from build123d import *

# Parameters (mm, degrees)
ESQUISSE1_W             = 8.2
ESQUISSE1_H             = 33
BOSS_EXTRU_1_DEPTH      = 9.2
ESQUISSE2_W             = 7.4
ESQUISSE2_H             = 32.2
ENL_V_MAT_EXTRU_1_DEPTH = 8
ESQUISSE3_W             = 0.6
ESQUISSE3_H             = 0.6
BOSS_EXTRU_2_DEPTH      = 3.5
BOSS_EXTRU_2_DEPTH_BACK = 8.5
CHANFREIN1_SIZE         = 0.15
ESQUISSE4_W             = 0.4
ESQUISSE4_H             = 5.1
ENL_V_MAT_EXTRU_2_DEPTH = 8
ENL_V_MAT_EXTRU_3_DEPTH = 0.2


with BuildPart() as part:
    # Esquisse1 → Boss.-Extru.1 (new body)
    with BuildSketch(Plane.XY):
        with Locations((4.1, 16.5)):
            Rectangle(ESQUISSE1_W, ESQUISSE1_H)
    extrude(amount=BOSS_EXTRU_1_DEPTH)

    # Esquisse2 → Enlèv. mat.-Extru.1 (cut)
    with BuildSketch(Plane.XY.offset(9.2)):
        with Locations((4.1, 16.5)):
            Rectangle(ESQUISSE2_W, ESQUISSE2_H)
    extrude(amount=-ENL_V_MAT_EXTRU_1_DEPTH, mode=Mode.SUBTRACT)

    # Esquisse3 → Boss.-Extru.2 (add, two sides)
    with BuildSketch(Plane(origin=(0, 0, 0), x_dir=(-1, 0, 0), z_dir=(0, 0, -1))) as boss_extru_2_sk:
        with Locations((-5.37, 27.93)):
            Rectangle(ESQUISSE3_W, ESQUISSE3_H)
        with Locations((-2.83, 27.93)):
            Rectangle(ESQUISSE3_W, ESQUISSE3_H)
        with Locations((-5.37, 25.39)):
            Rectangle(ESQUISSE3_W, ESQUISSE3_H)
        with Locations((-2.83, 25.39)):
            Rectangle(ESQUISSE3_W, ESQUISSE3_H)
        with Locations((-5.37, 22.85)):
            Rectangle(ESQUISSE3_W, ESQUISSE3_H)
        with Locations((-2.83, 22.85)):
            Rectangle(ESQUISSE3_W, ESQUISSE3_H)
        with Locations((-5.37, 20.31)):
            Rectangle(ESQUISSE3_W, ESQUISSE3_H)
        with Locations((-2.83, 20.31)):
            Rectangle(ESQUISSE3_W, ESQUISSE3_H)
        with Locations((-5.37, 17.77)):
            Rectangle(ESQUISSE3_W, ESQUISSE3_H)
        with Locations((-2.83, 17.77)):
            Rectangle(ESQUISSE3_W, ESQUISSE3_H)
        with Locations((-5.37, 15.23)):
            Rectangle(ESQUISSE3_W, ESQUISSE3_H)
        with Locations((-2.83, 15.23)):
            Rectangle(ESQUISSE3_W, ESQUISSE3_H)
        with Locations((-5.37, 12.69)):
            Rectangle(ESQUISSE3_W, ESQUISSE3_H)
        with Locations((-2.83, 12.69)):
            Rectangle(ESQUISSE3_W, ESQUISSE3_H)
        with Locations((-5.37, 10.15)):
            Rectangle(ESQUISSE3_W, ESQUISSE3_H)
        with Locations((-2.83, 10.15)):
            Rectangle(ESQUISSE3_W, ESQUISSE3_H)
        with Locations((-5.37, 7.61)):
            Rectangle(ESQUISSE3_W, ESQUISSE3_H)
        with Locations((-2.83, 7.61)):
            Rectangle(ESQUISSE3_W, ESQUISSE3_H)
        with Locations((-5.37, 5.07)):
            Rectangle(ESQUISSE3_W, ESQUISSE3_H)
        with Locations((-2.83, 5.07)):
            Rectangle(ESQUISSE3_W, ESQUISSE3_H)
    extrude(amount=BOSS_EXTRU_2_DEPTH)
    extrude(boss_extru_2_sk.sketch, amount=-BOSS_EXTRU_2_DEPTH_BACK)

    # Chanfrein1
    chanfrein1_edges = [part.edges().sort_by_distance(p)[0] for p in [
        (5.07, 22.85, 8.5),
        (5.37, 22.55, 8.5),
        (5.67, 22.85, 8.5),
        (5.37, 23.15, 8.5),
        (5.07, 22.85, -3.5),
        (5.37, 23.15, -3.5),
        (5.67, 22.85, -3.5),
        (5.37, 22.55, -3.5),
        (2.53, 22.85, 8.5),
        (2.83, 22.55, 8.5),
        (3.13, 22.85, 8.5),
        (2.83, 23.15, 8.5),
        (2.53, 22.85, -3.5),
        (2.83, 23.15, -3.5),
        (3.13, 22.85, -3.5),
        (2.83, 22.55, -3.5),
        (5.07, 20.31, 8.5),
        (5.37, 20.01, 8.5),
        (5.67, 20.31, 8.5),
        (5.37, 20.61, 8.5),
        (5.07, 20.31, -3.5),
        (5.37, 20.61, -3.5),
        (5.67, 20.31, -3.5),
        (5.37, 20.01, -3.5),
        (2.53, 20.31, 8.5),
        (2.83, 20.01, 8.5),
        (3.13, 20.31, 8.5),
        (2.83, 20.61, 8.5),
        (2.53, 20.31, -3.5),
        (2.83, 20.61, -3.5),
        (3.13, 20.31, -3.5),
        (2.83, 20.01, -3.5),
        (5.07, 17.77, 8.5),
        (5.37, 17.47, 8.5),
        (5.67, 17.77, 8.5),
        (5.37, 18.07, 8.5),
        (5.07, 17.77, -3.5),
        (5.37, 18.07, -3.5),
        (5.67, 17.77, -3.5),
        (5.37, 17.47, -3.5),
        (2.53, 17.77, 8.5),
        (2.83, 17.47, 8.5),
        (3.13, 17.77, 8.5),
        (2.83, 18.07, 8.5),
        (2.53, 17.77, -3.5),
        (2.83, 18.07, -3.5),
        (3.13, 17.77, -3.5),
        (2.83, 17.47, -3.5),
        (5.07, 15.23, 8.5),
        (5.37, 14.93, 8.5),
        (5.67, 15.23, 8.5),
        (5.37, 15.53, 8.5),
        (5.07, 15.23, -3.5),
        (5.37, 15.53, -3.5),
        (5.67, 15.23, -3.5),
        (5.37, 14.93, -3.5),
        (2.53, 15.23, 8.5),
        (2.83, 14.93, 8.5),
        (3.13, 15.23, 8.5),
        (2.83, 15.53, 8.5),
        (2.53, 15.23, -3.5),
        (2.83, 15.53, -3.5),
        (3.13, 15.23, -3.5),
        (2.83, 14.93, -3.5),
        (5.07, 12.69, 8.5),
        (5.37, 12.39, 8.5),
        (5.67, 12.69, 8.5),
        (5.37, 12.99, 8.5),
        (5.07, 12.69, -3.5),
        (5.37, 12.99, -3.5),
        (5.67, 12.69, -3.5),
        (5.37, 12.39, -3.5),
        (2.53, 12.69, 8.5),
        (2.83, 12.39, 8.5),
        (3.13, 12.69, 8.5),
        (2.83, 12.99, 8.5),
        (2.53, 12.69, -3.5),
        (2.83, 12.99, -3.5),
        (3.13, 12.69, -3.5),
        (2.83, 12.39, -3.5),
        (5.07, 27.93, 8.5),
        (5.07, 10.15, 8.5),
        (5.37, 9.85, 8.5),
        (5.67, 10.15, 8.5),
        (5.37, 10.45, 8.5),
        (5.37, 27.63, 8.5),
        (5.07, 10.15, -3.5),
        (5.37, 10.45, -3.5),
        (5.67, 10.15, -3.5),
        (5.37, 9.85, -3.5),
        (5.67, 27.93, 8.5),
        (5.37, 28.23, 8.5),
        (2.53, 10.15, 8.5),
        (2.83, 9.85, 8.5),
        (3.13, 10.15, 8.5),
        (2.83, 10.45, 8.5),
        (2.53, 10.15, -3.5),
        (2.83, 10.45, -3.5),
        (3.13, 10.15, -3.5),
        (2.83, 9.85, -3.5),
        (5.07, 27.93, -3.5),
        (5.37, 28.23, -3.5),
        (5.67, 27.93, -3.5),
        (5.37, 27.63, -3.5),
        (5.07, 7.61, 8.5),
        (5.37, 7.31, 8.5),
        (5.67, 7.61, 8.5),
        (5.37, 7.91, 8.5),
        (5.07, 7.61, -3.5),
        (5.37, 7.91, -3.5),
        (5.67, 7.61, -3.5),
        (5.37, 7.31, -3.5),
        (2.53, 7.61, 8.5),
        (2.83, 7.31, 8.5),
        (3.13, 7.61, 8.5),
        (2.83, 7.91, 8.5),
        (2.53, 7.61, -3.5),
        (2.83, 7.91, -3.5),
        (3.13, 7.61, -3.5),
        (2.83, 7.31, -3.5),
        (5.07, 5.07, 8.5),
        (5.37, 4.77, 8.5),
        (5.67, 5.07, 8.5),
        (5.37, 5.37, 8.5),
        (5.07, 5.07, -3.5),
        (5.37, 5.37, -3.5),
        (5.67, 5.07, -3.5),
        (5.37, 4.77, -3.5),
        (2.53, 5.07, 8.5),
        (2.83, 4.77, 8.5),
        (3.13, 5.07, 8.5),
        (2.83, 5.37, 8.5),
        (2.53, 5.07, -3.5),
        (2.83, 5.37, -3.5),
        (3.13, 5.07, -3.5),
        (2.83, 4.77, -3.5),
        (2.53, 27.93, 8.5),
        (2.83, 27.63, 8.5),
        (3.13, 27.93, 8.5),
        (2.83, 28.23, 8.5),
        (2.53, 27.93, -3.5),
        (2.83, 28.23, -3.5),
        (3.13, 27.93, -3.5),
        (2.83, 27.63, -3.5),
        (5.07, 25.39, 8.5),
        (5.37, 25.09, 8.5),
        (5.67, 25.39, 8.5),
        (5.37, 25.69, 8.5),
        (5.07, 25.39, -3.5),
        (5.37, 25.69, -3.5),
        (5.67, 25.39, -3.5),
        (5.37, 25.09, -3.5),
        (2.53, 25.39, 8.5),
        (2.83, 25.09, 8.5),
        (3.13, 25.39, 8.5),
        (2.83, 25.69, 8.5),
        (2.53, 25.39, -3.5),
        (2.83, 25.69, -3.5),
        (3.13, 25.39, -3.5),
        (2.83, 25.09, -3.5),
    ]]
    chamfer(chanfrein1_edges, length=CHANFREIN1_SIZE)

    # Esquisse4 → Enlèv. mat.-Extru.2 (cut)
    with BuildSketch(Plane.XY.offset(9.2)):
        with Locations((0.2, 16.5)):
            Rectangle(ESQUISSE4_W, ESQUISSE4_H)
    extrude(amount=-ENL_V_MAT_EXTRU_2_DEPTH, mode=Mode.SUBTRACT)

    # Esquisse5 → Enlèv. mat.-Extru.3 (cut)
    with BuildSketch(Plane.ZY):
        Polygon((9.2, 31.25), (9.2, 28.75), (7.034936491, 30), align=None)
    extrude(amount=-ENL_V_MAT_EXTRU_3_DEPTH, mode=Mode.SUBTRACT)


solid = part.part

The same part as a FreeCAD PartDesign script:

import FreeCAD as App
import Part
import Sketcher
Q = App.Units.Quantity


def edges_at(feature, points):
    """Names of the edges that pass closest to the given points."""
    edges = feature.Shape.Edges
    near = lambda p: min(range(len(edges)), key=lambda i: edges[i].distToShape(Part.Vertex(*p))[0])
    return sorted({f"Edge{near(p) + 1}" for p in points})

doc = App.newDocument("Part")
body = doc.addObject("PartDesign::Body", "Body")

sketch1 = body.newObject("Sketcher::SketchObject", "Sketch")
sketch1.AttachmentSupport = (doc.getObject("XY_Plane"), [""])
sketch1.MapMode = "FlatFace"
sketch1.addGeometry([
    Part.LineSegment(App.Vector(0, 33, 0), App.Vector(0, 0, 0)),
    Part.LineSegment(App.Vector(0, 0, 0), App.Vector(8.2, 0, 0)),
    Part.LineSegment(App.Vector(8.2, 0, 0), App.Vector(8.2, 33, 0)),
    Part.LineSegment(App.Vector(8.2, 33, 0), App.Vector(0, 33, 0)),
], False)
sketch1.addConstraint([
    Sketcher.Constraint("Coincident", 0, 2, 1, 1),
    Sketcher.Constraint("Coincident", 1, 2, 2, 1),
    Sketcher.Constraint("Coincident", 2, 2, 3, 1),
    Sketcher.Constraint("Coincident", 3, 2, 0, 1),
    Sketcher.Constraint("Vertical", 0),
    Sketcher.Constraint("Horizontal", 1),
    Sketcher.Constraint("Vertical", 2),
    Sketcher.Constraint("Horizontal", 3),
    Sketcher.Constraint("Coincident", 0, 2, -1, 1),
    Sketcher.Constraint("DistanceY", 0, 2, 0, 1, 33.0),
    Sketcher.Constraint("DistanceX", 1, 1, 1, 2, 8.2),
])
pad1 = body.newObject("PartDesign::Pad", "Pad")
pad1.Profile = sketch1
pad1.Length = 9.2

sketch2 = body.newObject("Sketcher::SketchObject", "Sketch001")
sketch2.AttachmentSupport = (doc.getObject("XY_Plane"), [""])
sketch2.MapMode = "FlatFace"
sketch2.AttachmentOffset = App.Placement(App.Vector(0, 0, 9.2), App.Rotation())
sketch2.addGeometry([
    Part.LineSegment(App.Vector(0.4, 32.6, 0), App.Vector(0.4, 0.4, 0)),
    Part.LineSegment(App.Vector(0.4, 0.4, 0), App.Vector(7.8, 0.4, 0)),
    Part.LineSegment(App.Vector(7.8, 0.4, 0), App.Vector(7.8, 32.6, 0)),
    Part.LineSegment(App.Vector(7.8, 32.6, 0), App.Vector(0.4, 32.6, 0)),
], False)
sketch2.addConstraint([
    Sketcher.Constraint("Coincident", 0, 2, 1, 1),
    Sketcher.Constraint("Coincident", 1, 2, 2, 1),
    Sketcher.Constraint("Coincident", 2, 2, 3, 1),
    Sketcher.Constraint("Coincident", 3, 2, 0, 1),
    Sketcher.Constraint("Vertical", 0),
    Sketcher.Constraint("Horizontal", 1),
    Sketcher.Constraint("Vertical", 2),
    Sketcher.Constraint("Horizontal", 3),
    Sketcher.Constraint("DistanceX", 1, 1, 1, 2, 7.4),
    Sketcher.Constraint("DistanceY", 0, 2, 0, 1, 32.2),
    Sketcher.Constraint("DistanceX", -1, 1, 0, 2, 0.4),
    Sketcher.Constraint("DistanceY", -1, 1, 0, 2, 0.4),
])
pocket1 = body.newObject("PartDesign::Pocket", "Pocket")
pocket1.Profile = sketch2
pocket1.Length = 8

sketch3 = body.newObject("Sketcher::SketchObject", "Sketch002")
sketch3.AttachmentSupport = (doc.getObject("XY_Plane"), [""])
sketch3.MapMode = "FlatFace"
sketch3.addGeometry([
    Part.LineSegment(App.Vector(5.67, 28.23, 0), App.Vector(5.67, 27.63, 0)),
    Part.LineSegment(App.Vector(5.67, 27.63, 0), App.Vector(5.07, 27.63, 0)),
    Part.LineSegment(App.Vector(5.07, 27.63, 0), App.Vector(5.07, 28.23, 0)),
    Part.LineSegment(App.Vector(5.07, 28.23, 0), App.Vector(5.67, 28.23, 0)),
    Part.LineSegment(App.Vector(3.13, 28.23, 0), App.Vector(3.13, 27.63, 0)),
    Part.LineSegment(App.Vector(3.13, 27.63, 0), App.Vector(2.53, 27.63, 0)),
    Part.LineSegment(App.Vector(2.53, 27.63, 0), App.Vector(2.53, 28.23, 0)),
    Part.LineSegment(App.Vector(2.53, 28.23, 0), App.Vector(3.13, 28.23, 0)),
    Part.LineSegment(App.Vector(5.67, 25.69, 0), App.Vector(5.67, 25.09, 0)),
    Part.LineSegment(App.Vector(5.67, 25.09, 0), App.Vector(5.07, 25.09, 0)),
    Part.LineSegment(App.Vector(5.07, 25.09, 0), App.Vector(5.07, 25.69, 0)),
    Part.LineSegment(App.Vector(5.07, 25.69, 0), App.Vector(5.67, 25.69, 0)),
    Part.LineSegment(App.Vector(3.13, 25.69, 0), App.Vector(3.13, 25.09, 0)),
    Part.LineSegment(App.Vector(3.13, 25.09, 0), App.Vector(2.53, 25.09, 0)),
    Part.LineSegment(App.Vector(2.53, 25.09, 0), App.Vector(2.53, 25.69, 0)),
    Part.LineSegment(App.Vector(2.53, 25.69, 0), App.Vector(3.13, 25.69, 0)),
    Part.LineSegment(App.Vector(5.67, 23.15, 0), App.Vector(5.67, 22.55, 0)),
    Part.LineSegment(App.Vector(5.67, 22.55, 0), App.Vector(5.07, 22.55, 0)),
    Part.LineSegment(App.Vector(5.07, 22.55, 0), App.Vector(5.07, 23.15, 0)),
    Part.LineSegment(App.Vector(5.07, 23.15, 0), App.Vector(5.67, 23.15, 0)),
    Part.LineSegment(App.Vector(3.13, 23.15, 0), App.Vector(3.13, 22.55, 0)),
    Part.LineSegment(App.Vector(3.13, 22.55, 0), App.Vector(2.53, 22.55, 0)),
    Part.LineSegment(App.Vector(2.53, 22.55, 0), App.Vector(2.53, 23.15, 0)),
    Part.LineSegment(App.Vector(2.53, 23.15, 0), App.Vector(3.13, 23.15, 0)),
    Part.LineSegment(App.Vector(5.67, 20.61, 0), App.Vector(5.67, 20.01, 0)),
    Part.LineSegment(App.Vector(5.67, 20.01, 0), App.Vector(5.07, 20.01, 0)),
    Part.LineSegment(App.Vector(5.07, 20.01, 0), App.Vector(5.07, 20.61, 0)),
    Part.LineSegment(App.Vector(5.07, 20.61, 0), App.Vector(5.67, 20.61, 0)),
    Part.LineSegment(App.Vector(3.13, 20.61, 0), App.Vector(3.13, 20.01, 0)),
    Part.LineSegment(App.Vector(3.13, 20.01, 0), App.Vector(2.53, 20.01, 0)),
    Part.LineSegment(App.Vector(2.53, 20.01, 0), App.Vector(2.53, 20.61, 0)),
    Part.LineSegment(App.Vector(2.53, 20.61, 0), App.Vector(3.13, 20.61, 0)),
    Part.LineSegment(App.Vector(5.67, 18.07, 0), App.Vector(5.67, 17.47, 0)),
    Part.LineSegment(App.Vector(5.67, 17.47, 0), App.Vector(5.07, 17.47, 0)),
    Part.LineSegment(App.Vector(5.07, 17.47, 0), App.Vector(5.07, 18.07, 0)),
    Part.LineSegment(App.Vector(5.07, 18.07, 0), App.Vector(5.67, 18.07, 0)),
    Part.LineSegment(App.Vector(3.13, 18.07, 0), App.Vector(3.13, 17.47, 0)),
    Part.LineSegment(App.Vector(3.13, 17.47, 0), App.Vector(2.53, 17.47, 0)),
    Part.LineSegment(App.Vector(2.53, 17.47, 0), App.Vector(2.53, 18.07, 0)),
    Part.LineSegment(App.Vector(2.53, 18.07, 0), App.Vector(3.13, 18.07, 0)),
    Part.LineSegment(App.Vector(5.67, 15.53, 0), App.Vector(5.67, 14.93, 0)),
    Part.LineSegment(App.Vector(5.67, 14.93, 0), App.Vector(5.07, 14.93, 0)),
    Part.LineSegment(App.Vector(5.07, 14.93, 0), App.Vector(5.07, 15.53, 0)),
    Part.LineSegment(App.Vector(5.07, 15.53, 0), App.Vector(5.67, 15.53, 0)),
    Part.LineSegment(App.Vector(3.13, 15.53, 0), App.Vector(3.13, 14.93, 0)),
    Part.LineSegment(App.Vector(3.13, 14.93, 0), App.Vector(2.53, 14.93, 0)),
    Part.LineSegment(App.Vector(2.53, 14.93, 0), App.Vector(2.53, 15.53, 0)),
    Part.LineSegment(App.Vector(2.53, 15.53, 0), App.Vector(3.13, 15.53, 0)),
    Part.LineSegment(App.Vector(5.67, 12.99, 0), App.Vector(5.67, 12.39, 0)),
    Part.LineSegment(App.Vector(5.67, 12.39, 0), App.Vector(5.07, 12.39, 0)),
    Part.LineSegment(App.Vector(5.07, 12.39, 0), App.Vector(5.07, 12.99, 0)),
    Part.LineSegment(App.Vector(5.07, 12.99, 0), App.Vector(5.67, 12.99, 0)),
    Part.LineSegment(App.Vector(3.13, 12.99, 0), App.Vector(3.13, 12.39, 0)),
    Part.LineSegment(App.Vector(3.13, 12.39, 0), App.Vector(2.53, 12.39, 0)),
    Part.LineSegment(App.Vector(2.53, 12.39, 0), App.Vector(2.53, 12.99, 0)),
    Part.LineSegment(App.Vector(2.53, 12.99, 0), App.Vector(3.13, 12.99, 0)),
    Part.LineSegment(App.Vector(5.67, 10.45, 0), App.Vector(5.67, 9.85, 0)),
    Part.LineSegment(App.Vector(5.67, 9.85, 0), App.Vector(5.07, 9.85, 0)),
    Part.LineSegment(App.Vector(5.07, 9.85, 0), App.Vector(5.07, 10.45, 0)),
    Part.LineSegment(App.Vector(5.07, 10.45, 0), App.Vector(5.67, 10.45, 0)),
    Part.LineSegment(App.Vector(3.13, 10.45, 0), App.Vector(3.13, 9.85, 0)),
    Part.LineSegment(App.Vector(3.13, 9.85, 0), App.Vector(2.53, 9.85, 0)),
    Part.LineSegment(App.Vector(2.53, 9.85, 0), App.Vector(2.53, 10.45, 0)),
    Part.LineSegment(App.Vector(2.53, 10.45, 0), App.Vector(3.13, 10.45, 0)),
    Part.LineSegment(App.Vector(5.67, 7.91, 0), App.Vector(5.67, 7.31, 0)),
    Part.LineSegment(App.Vector(5.67, 7.31, 0), App.Vector(5.07, 7.31, 0)),
    Part.LineSegment(App.Vector(5.07, 7.31, 0), App.Vector(5.07, 7.91, 0)),
    Part.LineSegment(App.Vector(5.07, 7.91, 0), App.Vector(5.67, 7.91, 0)),
    Part.LineSegment(App.Vector(3.13, 7.91, 0), App.Vector(3.13, 7.31, 0)),
    Part.LineSegment(App.Vector(3.13, 7.31, 0), App.Vector(2.53, 7.31, 0)),
    Part.LineSegment(App.Vector(2.53, 7.31, 0), App.Vector(2.53, 7.91, 0)),
    Part.LineSegment(App.Vector(2.53, 7.91, 0), App.Vector(3.13, 7.91, 0)),
    Part.LineSegment(App.Vector(5.67, 5.37, 0), App.Vector(5.67, 4.77, 0)),
    Part.LineSegment(App.Vector(5.67, 4.77, 0), App.Vector(5.07, 4.77, 0)),
    Part.LineSegment(App.Vector(5.07, 4.77, 0), App.Vector(5.07, 5.37, 0)),
    Part.LineSegment(App.Vector(5.07, 5.37, 0), App.Vector(5.67, 5.37, 0)),
    Part.LineSegment(App.Vector(3.13, 5.37, 0), App.Vector(3.13, 4.77, 0)),
    Part.LineSegment(App.Vector(3.13, 4.77, 0), App.Vector(2.53, 4.77, 0)),
    Part.LineSegment(App.Vector(2.53, 4.77, 0), App.Vector(2.53, 5.37, 0)),
    Part.LineSegment(App.Vector(2.53, 5.37, 0), App.Vector(3.13, 5.37, 0)),
], False)
sketch3.addConstraint([
    Sketcher.Constraint("Coincident", 0, 2, 1, 1),
    Sketcher.Constraint("Coincident", 1, 2, 2, 1),
    Sketcher.Constraint("Coincident", 2, 2, 3, 1),
    Sketcher.Constraint("Coincident", 3, 2, 0, 1),
    Sketcher.Constraint("Coincident", 4, 2, 5, 1),
    Sketcher.Constraint("Coincident", 5, 2, 6, 1),
    Sketcher.Constraint("Coincident", 6, 2, 7, 1),
    Sketcher.Constraint("Coincident", 7, 2, 4, 1),
    Sketcher.Constraint("Coincident", 8, 2, 9, 1),
    Sketcher.Constraint("Coincident", 9, 2, 10, 1),
    Sketcher.Constraint("Coincident", 10, 2, 11, 1),
    Sketcher.Constraint("Coincident", 11, 2, 8, 1),
    Sketcher.Constraint("Coincident", 12, 2, 13, 1),
    Sketcher.Constraint("Coincident", 13, 2, 14, 1),
    Sketcher.Constraint("Coincident", 14, 2, 15, 1),
    Sketcher.Constraint("Coincident", 15, 2, 12, 1),
    Sketcher.Constraint("Coincident", 16, 2, 17, 1),
    Sketcher.Constraint("Coincident", 17, 2, 18, 1),
    Sketcher.Constraint("Coincident", 18, 2, 19, 1),
    Sketcher.Constraint("Coincident", 19, 2, 16, 1),
    Sketcher.Constraint("Coincident", 20, 2, 21, 1),
    Sketcher.Constraint("Coincident", 21, 2, 22, 1),
    Sketcher.Constraint("Coincident", 22, 2, 23, 1),
    Sketcher.Constraint("Coincident", 23, 2, 20, 1),
    Sketcher.Constraint("Coincident", 24, 2, 25, 1),
    Sketcher.Constraint("Coincident", 25, 2, 26, 1),
    Sketcher.Constraint("Coincident", 26, 2, 27, 1),
    Sketcher.Constraint("Coincident", 27, 2, 24, 1),
    Sketcher.Constraint("Coincident", 28, 2, 29, 1),
    Sketcher.Constraint("Coincident", 29, 2, 30, 1),
    Sketcher.Constraint("Coincident", 30, 2, 31, 1),
    Sketcher.Constraint("Coincident", 31, 2, 28, 1),
    Sketcher.Constraint("Coincident", 32, 2, 33, 1),
    Sketcher.Constraint("Coincident", 33, 2, 34, 1),
    Sketcher.Constraint("Coincident", 34, 2, 35, 1),
    Sketcher.Constraint("Coincident", 35, 2, 32, 1),
    Sketcher.Constraint("Coincident", 36, 2, 37, 1),
    Sketcher.Constraint("Coincident", 37, 2, 38, 1),
    Sketcher.Constraint("Coincident", 38, 2, 39, 1),
    Sketcher.Constraint("Coincident", 39, 2, 36, 1),
    Sketcher.Constraint("Coincident", 40, 2, 41, 1),
    Sketcher.Constraint("Coincident", 41, 2, 42, 1),
    Sketcher.Constraint("Coincident", 42, 2, 43, 1),
    Sketcher.Constraint("Coincident", 43, 2, 40, 1),
    Sketcher.Constraint("Coincident", 44, 2, 45, 1),
    Sketcher.Constraint("Coincident", 45, 2, 46, 1),
    Sketcher.Constraint("Coincident", 46, 2, 47, 1),
    Sketcher.Constraint("Coincident", 47, 2, 44, 1),
    Sketcher.Constraint("Coincident", 48, 2, 49, 1),
    Sketcher.Constraint("Coincident", 49, 2, 50, 1),
    Sketcher.Constraint("Coincident", 50, 2, 51, 1),
    Sketcher.Constraint("Coincident", 51, 2, 48, 1),
    Sketcher.Constraint("Coincident", 52, 2, 53, 1),
    Sketcher.Constraint("Coincident", 53, 2, 54, 1),
    Sketcher.Constraint("Coincident", 54, 2, 55, 1),
    Sketcher.Constraint("Coincident", 55, 2, 52, 1),
    Sketcher.Constraint("Coincident", 56, 2, 57, 1),
    Sketcher.Constraint("Coincident", 57, 2, 58, 1),
    Sketcher.Constraint("Coincident", 58, 2, 59, 1),
    Sketcher.Constraint("Coincident", 59, 2, 56, 1),
    Sketcher.Constraint("Coincident", 60, 2, 61, 1),
    Sketcher.Constraint("Coincident", 61, 2, 62, 1),
    Sketcher.Constraint("Coincident", 62, 2, 63, 1),
    Sketcher.Constraint("Coincident", 63, 2, 60, 1),
    Sketcher.Constraint("Coincident", 64, 2, 65, 1),
    Sketcher.Constraint("Coincident", 65, 2, 66, 1),
    Sketcher.Constraint("Coincident", 66, 2, 67, 1),
    Sketcher.Constraint("Coincident", 67, 2, 64, 1),
    Sketcher.Constraint("Coincident", 68, 2, 69, 1),
    Sketcher.Constraint("Coincident", 69, 2, 70, 1),
    Sketcher.Constraint("Coincident", 70, 2, 71, 1),
    Sketcher.Constraint("Coincident", 71, 2, 68, 1),
    Sketcher.Constraint("Coincident", 72, 2, 73, 1),
    Sketcher.Constraint("Coincident", 73, 2, 74, 1),
    Sketcher.Constraint("Coincident", 74, 2, 75, 1),
    Sketcher.Constraint("Coincident", 75, 2, 72, 1),
    Sketcher.Constraint("Coincident", 76, 2, 77, 1),
    Sketcher.Constraint("Coincident", 77, 2, 78, 1),
    Sketcher.Constraint("Coincident", 78, 2, 79, 1),
    Sketcher.Constraint("Coincident", 79, 2, 76, 1),
    Sketcher.Constraint("Vertical", 0),
    Sketcher.Constraint("Horizontal", 1),
    Sketcher.Constraint("Vertical", 2),
    Sketcher.Constraint("Horizontal", 3),
    Sketcher.Constraint("Vertical", 4),
    Sketcher.Constraint("Horizontal", 5),
    Sketcher.Constraint("Vertical", 6),
    Sketcher.Constraint("Horizontal", 7),
    Sketcher.Constraint("Vertical", 8),
    Sketcher.Constraint("Horizontal", 9),
    Sketcher.Constraint("Vertical", 10),
    Sketcher.Constraint("Horizontal", 11),
    Sketcher.Constraint("Vertical", 12),
    Sketcher.Constraint("Horizontal", 13),
    Sketcher.Constraint("Vertical", 14),
    Sketcher.Constraint("Horizontal", 15),
    Sketcher.Constraint("Vertical", 16),
    Sketcher.Constraint("Horizontal", 17),
    Sketcher.Constraint("Vertical", 18),
    Sketcher.Constraint("Horizontal", 19),
    Sketcher.Constraint("Vertical", 20),
    Sketcher.Constraint("Horizontal", 21),
    Sketcher.Constraint("Vertical", 22),
    Sketcher.Constraint("Horizontal", 23),
    Sketcher.Constraint("Vertical", 24),
    Sketcher.Constraint("Horizontal", 25),
    Sketcher.Constraint("Vertical", 26),
    Sketcher.Constraint("Horizontal", 27),
    Sketcher.Constraint("Vertical", 28),
    Sketcher.Constraint("Horizontal", 29),
    Sketcher.Constraint("Vertical", 30),
    Sketcher.Constraint("Horizontal", 31),
    Sketcher.Constraint("Vertical", 32),
    Sketcher.Constraint("Horizontal", 33),
    Sketcher.Constraint("Vertical", 34),
    Sketcher.Constraint("Horizontal", 35),
    Sketcher.Constraint("Vertical", 36),
    Sketcher.Constraint("Horizontal", 37),
    Sketcher.Constraint("Vertical", 38),
    Sketcher.Constraint("Horizontal", 39),
    Sketcher.Constraint("Vertical", 40),
    Sketcher.Constraint("Horizontal", 41),
    Sketcher.Constraint("Vertical", 42),
    Sketcher.Constraint("Horizontal", 43),
    Sketcher.Constraint("Vertical", 44),
    Sketcher.Constraint("Horizontal", 45),
    Sketcher.Constraint("Vertical", 46),
    Sketcher.Constraint("Horizontal", 47),
    Sketcher.Constraint("Vertical", 48),
    Sketcher.Constraint("Horizontal", 49),
    Sketcher.Constraint("Vertical", 50),
    Sketcher.Constraint("Horizontal", 51),
    Sketcher.Constraint("Vertical", 52),
    Sketcher.Constraint("Horizontal", 53),
    Sketcher.Constraint("Vertical", 54),
    Sketcher.Constraint("Horizontal", 55),
    Sketcher.Constraint("Vertical", 56),
    Sketcher.Constraint("Horizontal", 57),
    Sketcher.Constraint("Vertical", 58),
    Sketcher.Constraint("Horizontal", 59),
    Sketcher.Constraint("Vertical", 60),
    Sketcher.Constraint("Horizontal", 61),
    Sketcher.Constraint("Vertical", 62),
    Sketcher.Constraint("Horizontal", 63),
    Sketcher.Constraint("Vertical", 64),
    Sketcher.Constraint("Horizontal", 65),
    Sketcher.Constraint("Vertical", 66),
    Sketcher.Constraint("Horizontal", 67),
    Sketcher.Constraint("Vertical", 68),
    Sketcher.Constraint("Horizontal", 69),
    Sketcher.Constraint("Vertical", 70),
    Sketcher.Constraint("Horizontal", 71),
    Sketcher.Constraint("Vertical", 72),
    Sketcher.Constraint("Horizontal", 73),
    Sketcher.Constraint("Vertical", 74),
    Sketcher.Constraint("Horizontal", 75),
    Sketcher.Constraint("Vertical", 76),
    Sketcher.Constraint("Horizontal", 77),
    Sketcher.Constraint("Vertical", 78),
    Sketcher.Constraint("Horizontal", 79),
    Sketcher.Constraint("Horizontal", 1, 2, 4, 2),
    Sketcher.Constraint("Horizontal", 3, 2, 6, 2),
    Sketcher.Constraint("Horizontal", 9, 2, 12, 2),
    Sketcher.Constraint("Horizontal", 11, 2, 14, 2),
    Sketcher.Constraint("Horizontal", 17, 2, 20, 2),
    Sketcher.Constraint("Horizontal", 19, 2, 22, 2),
    Sketcher.Constraint("Horizontal", 25, 2, 28, 2),
    Sketcher.Constraint("Horizontal", 27, 2, 30, 2),
    Sketcher.Constraint("Horizontal", 33, 2, 36, 2),
    Sketcher.Constraint("Horizontal", 35, 2, 38, 2),
    Sketcher.Constraint("Horizontal", 41, 2, 44, 2),
    Sketcher.Constraint("Horizontal", 43, 2, 46, 2),
    Sketcher.Constraint("Horizontal", 49, 2, 52, 2),
    Sketcher.Constraint("Horizontal", 51, 2, 54, 2),
    Sketcher.Constraint("Horizontal", 57, 2, 60, 2),
    Sketcher.Constraint("Horizontal", 59, 2, 62, 2),
    Sketcher.Constraint("Horizontal", 65, 2, 68, 2),
    Sketcher.Constraint("Horizontal", 67, 2, 70, 2),
    Sketcher.Constraint("Horizontal", 73, 2, 76, 2),
    Sketcher.Constraint("Horizontal", 75, 2, 78, 2),
    Sketcher.Constraint("Vertical", 3, 2, 8, 2),
    Sketcher.Constraint("Vertical", 2, 2, 9, 2),
    Sketcher.Constraint("Vertical", 7, 2, 12, 2),
    Sketcher.Constraint("Vertical", 6, 2, 13, 2),
    Sketcher.Constraint("Vertical", 11, 2, 16, 2),
    Sketcher.Constraint("Vertical", 10, 2, 17, 2),
    Sketcher.Constraint("Vertical", 15, 2, 20, 2),
    Sketcher.Constraint("Vertical", 14, 2, 21, 2),
    Sketcher.Constraint("Vertical", 19, 2, 24, 2),
    Sketcher.Constraint("Vertical", 18, 2, 25, 2),
    Sketcher.Constraint("Vertical", 23, 2, 28, 2),
    Sketcher.Constraint("Vertical", 22, 2, 29, 2),
    Sketcher.Constraint("Vertical", 27, 2, 32, 2),
    Sketcher.Constraint("Vertical", 26, 2, 33, 2),
    Sketcher.Constraint("Vertical", 31, 2, 36, 2),
    Sketcher.Constraint("Vertical", 30, 2, 37, 2),
    Sketcher.Constraint("Vertical", 35, 2, 40, 2),
    Sketcher.Constraint("Vertical", 34, 2, 41, 2),
    Sketcher.Constraint("Vertical", 39, 2, 44, 2),
    Sketcher.Constraint("Vertical", 38, 2, 45, 2),
    Sketcher.Constraint("Vertical", 43, 2, 48, 2),
    Sketcher.Constraint("Vertical", 42, 2, 49, 2),
    Sketcher.Constraint("Vertical", 47, 2, 52, 2),
    Sketcher.Constraint("Vertical", 46, 2, 53, 2),
    Sketcher.Constraint("Vertical", 51, 2, 56, 2),
    Sketcher.Constraint("Vertical", 50, 2, 57, 2),
    Sketcher.Constraint("Vertical", 55, 2, 60, 2),
    Sketcher.Constraint("Vertical", 54, 2, 61, 2),
    Sketcher.Constraint("Vertical", 59, 2, 64, 2),
    Sketcher.Constraint("Vertical", 58, 2, 65, 2),
    Sketcher.Constraint("Vertical", 63, 2, 68, 2),
    Sketcher.Constraint("Vertical", 62, 2, 69, 2),
    Sketcher.Constraint("Vertical", 67, 2, 72, 2),
    Sketcher.Constraint("Vertical", 66, 2, 73, 2),
    Sketcher.Constraint("Vertical", 71, 2, 76, 2),
    Sketcher.Constraint("Vertical", 70, 2, 77, 2),
    Sketcher.Constraint("Equal", 3, 5),
    Sketcher.Constraint("Equal", 79, 0),
    Sketcher.Constraint("Equal", 6, 8),
    Sketcher.Constraint("Equal", 14, 16),
    Sketcher.Constraint("Equal", 22, 24),
    Sketcher.Constraint("Equal", 30, 32),
    Sketcher.Constraint("Equal", 38, 40),
    Sketcher.Constraint("Equal", 46, 48),
    Sketcher.Constraint("Equal", 54, 56),
    Sketcher.Constraint("Equal", 62, 64),
    Sketcher.Constraint("Equal", 70, 72),
    Sketcher.Constraint("DistanceX", 1, 2, 1, 1, 0.6),
    Sketcher.Constraint("DistanceX", -1, 1, 0, 2, 5.67),
    Sketcher.Constraint("DistanceY", -1, 1, 0, 2, 27.63),
    Sketcher.Constraint("DistanceX", -1, 1, 4, 2, 3.13),
    Sketcher.Constraint("DistanceY", -1, 1, 8, 2, 25.09),
    Sketcher.Constraint("DistanceY", -1, 1, 16, 2, 22.55),
    Sketcher.Constraint("DistanceY", -1, 1, 24, 2, 20.01),
    Sketcher.Constraint("DistanceY", -1, 1, 32, 2, 17.47),
    Sketcher.Constraint("DistanceY", -1, 1, 40, 2, 14.93),
    Sketcher.Constraint("DistanceY", -1, 1, 48, 2, 12.39),
    Sketcher.Constraint("DistanceY", -1, 1, 56, 2, 9.85),
    Sketcher.Constraint("DistanceY", -1, 1, 64, 2, 7.31),
    Sketcher.Constraint("DistanceY", -1, 1, 72, 2, 4.77),
])
pad2 = body.newObject("PartDesign::Pad", "Pad001")
pad2.Profile = sketch3
pad2.Type = "TwoLengths"
pad2.Length = 3.5
pad2.Length2 = 8.5
pad2.Reversed = True
doc.recompute()

chamfer = body.newObject("PartDesign::Chamfer", "Chamfer")
chamfer.Base = (pad2, edges_at(pad2, [
    (5.07, 22.85, 8.5),
    (5.37, 22.55, 8.5),
    (5.67, 22.85, 8.5),
    (5.37, 23.15, 8.5),
    (5.07, 22.85, -3.5),
    (5.37, 23.15, -3.5),
    (5.67, 22.85, -3.5),
    (5.37, 22.55, -3.5),
    (2.53, 22.85, 8.5),
    (2.83, 22.55, 8.5),
    (3.13, 22.85, 8.5),
    (2.83, 23.15, 8.5),
    (2.53, 22.85, -3.5),
    (2.83, 23.15, -3.5),
    (3.13, 22.85, -3.5),
    (2.83, 22.55, -3.5),
    (5.07, 20.31, 8.5),
    (5.37, 20.01, 8.5),
    (5.67, 20.31, 8.5),
    (5.37, 20.61, 8.5),
    (5.07, 20.31, -3.5),
    (5.37, 20.61, -3.5),
    (5.67, 20.31, -3.5),
    (5.37, 20.01, -3.5),
    (2.53, 20.31, 8.5),
    (2.83, 20.01, 8.5),
    (3.13, 20.31, 8.5),
    (2.83, 20.61, 8.5),
    (2.53, 20.31, -3.5),
    (2.83, 20.61, -3.5),
    (3.13, 20.31, -3.5),
    (2.83, 20.01, -3.5),
    (5.07, 17.77, 8.5),
    (5.37, 17.47, 8.5),
    (5.67, 17.77, 8.5),
    (5.37, 18.07, 8.5),
    (5.07, 17.77, -3.5),
    (5.37, 18.07, -3.5),
    (5.67, 17.77, -3.5),
    (5.37, 17.47, -3.5),
    (2.53, 17.77, 8.5),
    (2.83, 17.47, 8.5),
    (3.13, 17.77, 8.5),
    (2.83, 18.07, 8.5),
    (2.53, 17.77, -3.5),
    (2.83, 18.07, -3.5),
    (3.13, 17.77, -3.5),
    (2.83, 17.47, -3.5),
    (5.07, 15.23, 8.5),
    (5.37, 14.93, 8.5),
    (5.67, 15.23, 8.5),
    (5.37, 15.53, 8.5),
    (5.07, 15.23, -3.5),
    (5.37, 15.53, -3.5),
    (5.67, 15.23, -3.5),
    (5.37, 14.93, -3.5),
    (2.53, 15.23, 8.5),
    (2.83, 14.93, 8.5),
    (3.13, 15.23, 8.5),
    (2.83, 15.53, 8.5),
    (2.53, 15.23, -3.5),
    (2.83, 15.53, -3.5),
    (3.13, 15.23, -3.5),
    (2.83, 14.93, -3.5),
    (5.07, 12.69, 8.5),
    (5.37, 12.39, 8.5),
    (5.67, 12.69, 8.5),
    (5.37, 12.99, 8.5),
    (5.07, 12.69, -3.5),
    (5.37, 12.99, -3.5),
    (5.67, 12.69, -3.5),
    (5.37, 12.39, -3.5),
    (2.53, 12.69, 8.5),
    (2.83, 12.39, 8.5),
    (3.13, 12.69, 8.5),
    (2.83, 12.99, 8.5),
    (2.53, 12.69, -3.5),
    (2.83, 12.99, -3.5),
    (3.13, 12.69, -3.5),
    (2.83, 12.39, -3.5),
    (5.07, 27.93, 8.5),
    (5.07, 10.15, 8.5),
    (5.37, 9.85, 8.5),
    (5.67, 10.15, 8.5),
    (5.37, 10.45, 8.5),
    (5.37, 27.63, 8.5),
    (5.07, 10.15, -3.5),
    (5.37, 10.45, -3.5),
    (5.67, 10.15, -3.5),
    (5.37, 9.85, -3.5),
    (5.67, 27.93, 8.5),
    (5.37, 28.23, 8.5),
    (2.53, 10.15, 8.5),
    (2.83, 9.85, 8.5),
    (3.13, 10.15, 8.5),
    (2.83, 10.45, 8.5),
    (2.53, 10.15, -3.5),
    (2.83, 10.45, -3.5),
    (3.13, 10.15, -3.5),
    (2.83, 9.85, -3.5),
    (5.07, 27.93, -3.5),
    (5.37, 28.23, -3.5),
    (5.67, 27.93, -3.5),
    (5.37, 27.63, -3.5),
    (5.07, 7.61, 8.5),
    (5.37, 7.31, 8.5),
    (5.67, 7.61, 8.5),
    (5.37, 7.91, 8.5),
    (5.07, 7.61, -3.5),
    (5.37, 7.91, -3.5),
    (5.67, 7.61, -3.5),
    (5.37, 7.31, -3.5),
    (2.53, 7.61, 8.5),
    (2.83, 7.31, 8.5),
    (3.13, 7.61, 8.5),
    (2.83, 7.91, 8.5),
    (2.53, 7.61, -3.5),
    (2.83, 7.91, -3.5),
    (3.13, 7.61, -3.5),
    (2.83, 7.31, -3.5),
    (5.07, 5.07, 8.5),
    (5.37, 4.77, 8.5),
    (5.67, 5.07, 8.5),
    (5.37, 5.37, 8.5),
    (5.07, 5.07, -3.5),
    (5.37, 5.37, -3.5),
    (5.67, 5.07, -3.5),
    (5.37, 4.77, -3.5),
    (2.53, 5.07, 8.5),
    (2.83, 4.77, 8.5),
    (3.13, 5.07, 8.5),
    (2.83, 5.37, 8.5),
    (2.53, 5.07, -3.5),
    (2.83, 5.37, -3.5),
    (3.13, 5.07, -3.5),
    (2.83, 4.77, -3.5),
    (2.53, 27.93, 8.5),
    (2.83, 27.63, 8.5),
    (3.13, 27.93, 8.5),
    (2.83, 28.23, 8.5),
    (2.53, 27.93, -3.5),
    (2.83, 28.23, -3.5),
    (3.13, 27.93, -3.5),
    (2.83, 27.63, -3.5),
    (5.07, 25.39, 8.5),
    (5.37, 25.09, 8.5),
    (5.67, 25.39, 8.5),
    (5.37, 25.69, 8.5),
    (5.07, 25.39, -3.5),
    (5.37, 25.69, -3.5),
    (5.67, 25.39, -3.5),
    (5.37, 25.09, -3.5),
    (2.53, 25.39, 8.5),
    (2.83, 25.09, 8.5),
    (3.13, 25.39, 8.5),
    (2.83, 25.69, 8.5),
    (2.53, 25.39, -3.5),
    (2.83, 25.69, -3.5),
    (3.13, 25.39, -3.5),
    (2.83, 25.09, -3.5),
]))
chamfer.Size = 0.15

sketch4 = body.newObject("Sketcher::SketchObject", "Sketch003")
sketch4.AttachmentSupport = (doc.getObject("XY_Plane"), [""])
sketch4.MapMode = "FlatFace"
sketch4.AttachmentOffset = App.Placement(App.Vector(0, 0, 9.2), App.Rotation())
sketch4.addGeometry([
    Part.LineSegment(App.Vector(0, 19.05, 0), App.Vector(0, 13.95, 0)),
    Part.LineSegment(App.Vector(0, 13.95, 0), App.Vector(0.4, 13.95, 0)),
    Part.LineSegment(App.Vector(0.4, 13.95, 0), App.Vector(0.4, 19.05, 0)),
    Part.LineSegment(App.Vector(0.4, 19.05, 0), App.Vector(0, 19.05, 0)),
], False)
sketch4.addConstraint([
    Sketcher.Constraint("Coincident", 0, 2, 1, 1),
    Sketcher.Constraint("Coincident", 1, 2, 2, 1),
    Sketcher.Constraint("Coincident", 2, 2, 3, 1),
    Sketcher.Constraint("Coincident", 3, 2, 0, 1),
    Sketcher.Constraint("Vertical", 0),
    Sketcher.Constraint("Horizontal", 1),
    Sketcher.Constraint("Vertical", 2),
    Sketcher.Constraint("Horizontal", 3),
    Sketcher.Constraint("PointOnObject", 0, 2, -2),
    Sketcher.Constraint("DistanceX", 1, 1, 1, 2, 0.4),
    Sketcher.Constraint("DistanceY", 0, 2, 0, 1, 5.1),
    Sketcher.Constraint("DistanceY", -1, 1, 0, 2, 13.95),
])
pocket2 = body.newObject("PartDesign::Pocket", "Pocket001")
pocket2.Profile = sketch4
pocket2.Length = 8

sketch5 = body.newObject("Sketcher::SketchObject", "Sketch004")
sketch5.AttachmentSupport = (doc.getObject("YZ_Plane"), [""])
sketch5.MapMode = "FlatFace"
sketch5.addGeometry([
    Part.LineSegment(App.Vector(28.75, 9.2, 0), App.Vector(31.25, 9.2, 0)),
    Part.LineSegment(App.Vector(31.25, 9.2, 0), App.Vector(30, 7.034936, 0)),
    Part.LineSegment(App.Vector(30, 7.034936, 0), App.Vector(28.75, 9.2, 0)),
], False)
sketch5.addConstraint([
    Sketcher.Constraint("Coincident", 0, 2, 1, 1),
    Sketcher.Constraint("Coincident", 1, 2, 2, 1),
    Sketcher.Constraint("Coincident", 2, 2, 0, 1),
    Sketcher.Constraint("Horizontal", 0),
    Sketcher.Constraint("Equal", 1, 2),
    Sketcher.Constraint("Angle", 1, Q("-120 deg")),
    Sketcher.Constraint("DistanceX", 0, 1, 0, 2, 2.5),
    Sketcher.Constraint("DistanceX", -1, 1, 1, 2, 30.0),
    Sketcher.Constraint("DistanceY", -1, 1, 0, 2, 9.2),
])
pocket3 = body.newObject("PartDesign::Pocket", "Pocket002")
pocket3.Profile = sketch5
pocket3.Length = 0.2
pocket3.Reversed = True

doc.recompute()
